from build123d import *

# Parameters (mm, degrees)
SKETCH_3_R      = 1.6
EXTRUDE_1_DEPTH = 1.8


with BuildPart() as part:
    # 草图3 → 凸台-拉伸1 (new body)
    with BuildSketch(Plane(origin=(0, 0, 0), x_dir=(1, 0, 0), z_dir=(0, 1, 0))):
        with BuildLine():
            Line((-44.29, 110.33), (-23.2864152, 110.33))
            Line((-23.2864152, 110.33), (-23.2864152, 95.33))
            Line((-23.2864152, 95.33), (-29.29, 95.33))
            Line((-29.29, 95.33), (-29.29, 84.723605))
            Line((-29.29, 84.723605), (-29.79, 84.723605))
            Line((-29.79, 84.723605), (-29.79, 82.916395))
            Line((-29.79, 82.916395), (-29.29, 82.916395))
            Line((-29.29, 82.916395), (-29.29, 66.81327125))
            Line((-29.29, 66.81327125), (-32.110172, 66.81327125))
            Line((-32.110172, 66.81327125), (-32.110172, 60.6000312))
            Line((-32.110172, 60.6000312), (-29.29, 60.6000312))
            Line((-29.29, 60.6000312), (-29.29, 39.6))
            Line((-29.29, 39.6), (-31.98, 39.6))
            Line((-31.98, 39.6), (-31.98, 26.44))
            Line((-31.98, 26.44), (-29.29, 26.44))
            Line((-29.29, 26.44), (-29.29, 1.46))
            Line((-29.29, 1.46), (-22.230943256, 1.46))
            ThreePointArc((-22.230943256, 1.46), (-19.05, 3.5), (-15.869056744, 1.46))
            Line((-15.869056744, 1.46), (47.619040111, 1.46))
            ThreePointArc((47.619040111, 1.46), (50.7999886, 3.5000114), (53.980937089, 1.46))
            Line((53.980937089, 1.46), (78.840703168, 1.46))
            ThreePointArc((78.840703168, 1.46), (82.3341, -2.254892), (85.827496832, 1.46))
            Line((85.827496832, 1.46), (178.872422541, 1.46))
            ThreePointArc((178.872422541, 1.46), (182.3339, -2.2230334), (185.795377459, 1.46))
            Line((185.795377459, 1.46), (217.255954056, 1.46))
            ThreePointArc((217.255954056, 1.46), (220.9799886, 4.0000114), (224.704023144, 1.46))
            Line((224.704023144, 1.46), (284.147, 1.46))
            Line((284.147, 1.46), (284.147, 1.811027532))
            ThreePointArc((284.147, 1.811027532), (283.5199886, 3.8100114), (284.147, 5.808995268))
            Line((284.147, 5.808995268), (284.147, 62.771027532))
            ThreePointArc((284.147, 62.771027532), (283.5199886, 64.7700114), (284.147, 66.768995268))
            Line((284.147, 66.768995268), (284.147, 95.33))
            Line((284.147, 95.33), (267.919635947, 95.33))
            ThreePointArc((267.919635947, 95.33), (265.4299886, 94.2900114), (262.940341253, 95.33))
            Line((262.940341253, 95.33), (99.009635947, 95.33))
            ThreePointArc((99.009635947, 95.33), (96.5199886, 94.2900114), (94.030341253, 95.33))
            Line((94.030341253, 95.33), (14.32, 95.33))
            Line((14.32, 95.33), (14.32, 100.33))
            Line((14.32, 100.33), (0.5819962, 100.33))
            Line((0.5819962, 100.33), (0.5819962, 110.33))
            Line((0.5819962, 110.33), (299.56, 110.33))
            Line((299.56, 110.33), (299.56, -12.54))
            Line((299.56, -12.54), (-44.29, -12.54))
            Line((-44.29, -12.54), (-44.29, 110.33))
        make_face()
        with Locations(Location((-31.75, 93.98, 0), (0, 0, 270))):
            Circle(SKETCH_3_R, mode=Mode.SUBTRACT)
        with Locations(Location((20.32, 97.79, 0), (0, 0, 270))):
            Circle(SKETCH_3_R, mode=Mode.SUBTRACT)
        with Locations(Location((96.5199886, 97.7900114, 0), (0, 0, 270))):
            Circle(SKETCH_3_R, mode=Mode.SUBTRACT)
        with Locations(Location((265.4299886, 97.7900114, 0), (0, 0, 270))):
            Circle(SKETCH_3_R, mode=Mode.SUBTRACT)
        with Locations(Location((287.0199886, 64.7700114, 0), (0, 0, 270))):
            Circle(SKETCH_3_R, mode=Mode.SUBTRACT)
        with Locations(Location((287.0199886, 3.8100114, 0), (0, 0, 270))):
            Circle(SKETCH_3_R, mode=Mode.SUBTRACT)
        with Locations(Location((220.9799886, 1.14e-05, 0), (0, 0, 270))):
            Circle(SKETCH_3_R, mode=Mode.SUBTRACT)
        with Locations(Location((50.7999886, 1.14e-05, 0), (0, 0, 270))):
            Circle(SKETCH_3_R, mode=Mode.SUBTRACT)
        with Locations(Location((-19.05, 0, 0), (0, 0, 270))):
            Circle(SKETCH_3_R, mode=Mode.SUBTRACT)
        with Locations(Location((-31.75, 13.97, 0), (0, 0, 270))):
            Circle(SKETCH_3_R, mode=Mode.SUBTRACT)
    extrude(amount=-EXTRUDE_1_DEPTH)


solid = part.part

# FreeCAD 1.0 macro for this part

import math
import FreeCAD as App
import Part
import Sketcher
Q = App.Units.Quantity

doc = App.newDocument("Part")
body = doc.addObject("PartDesign::Body", "Body")

# Sketch on XZ plane
sketch1 = doc.addObject("Sketcher::SketchObject", "Sketch")
body.addObject(sketch1)
sketch1.AttachmentSupport = (doc.XZ_Plane, [""])
sketch1.MapMode = "FlatFace"
sketch1.addGeometry([
    Part.LineSegment(App.Vector(-23.29, -110.33, 0), App.Vector(-44.29, -110.33, 0)),  # 0
    Part.LineSegment(App.Vector(-44.29, -110.33, 0), App.Vector(-44.29, 12.54, 0)),  # 1
    Part.LineSegment(App.Vector(-44.29, 12.54, 0), App.Vector(299.56, 12.54, 0)),  # 2
    Part.LineSegment(App.Vector(299.56, 12.54, 0), App.Vector(299.56, -110.33, 0)),  # 3
    Part.LineSegment(App.Vector(299.56, -110.33, 0), App.Vector(0.58, -110.33, 0)),  # 4
    Part.LineSegment(App.Vector(0.58, -110.33, 0), App.Vector(0.58, -100.33, 0)),  # 5
    Part.LineSegment(App.Vector(0.58, -100.33, 0), App.Vector(14.32, -100.33, 0)),  # 6
    Part.LineSegment(App.Vector(14.32, -100.33, 0), App.Vector(14.32, -95.33, 0)),  # 7
    Part.LineSegment(App.Vector(14.32, -95.33, 0), App.Vector(94.03, -95.33, 0)),  # 8
    Part.ArcOfCircle(Part.Circle(App.Vector(96.52, -97.79, 0), App.Vector(0, 0, 1), 3.5), math.radians(45), math.radians(135)),  # 9
    Part.LineSegment(App.Vector(99.01, -95.33, 0), App.Vector(262.94, -95.33, 0)),  # 10
    Part.ArcOfCircle(Part.Circle(App.Vector(265.43, -97.79, 0), App.Vector(0, 0, 1), 3.5), math.radians(45), math.radians(135)),  # 11
    Part.LineSegment(App.Vector(267.92, -95.33, 0), App.Vector(284.15, -95.33, 0)),  # 12
    Part.LineSegment(App.Vector(284.15, -95.33, 0), App.Vector(284.15, -66.77, 0)),  # 13
    Part.ArcOfCircle(Part.Circle(App.Vector(287.02, -64.77, 0), App.Vector(0, 0, 1), 3.5), math.radians(145), math.radians(215)),  # 14
    Part.LineSegment(App.Vector(284.15, -62.77, 0), App.Vector(284.15, -5.81, 0)),  # 15
    Part.ArcOfCircle(Part.Circle(App.Vector(287.02, -3.81, 0), App.Vector(0, 0, 1), 3.5), math.radians(145), math.radians(215)),  # 16
    Part.LineSegment(App.Vector(284.15, -1.81, 0), App.Vector(284.15, -1.46, 0)),  # 17
    Part.LineSegment(App.Vector(284.15, -1.46, 0), App.Vector(224.7, -1.46, 0)),  # 18
    Part.ArcOfCircle(Part.Circle(App.Vector(220.98, 0, 0), App.Vector(0, 0, 1), 4), math.radians(-159), math.radians(-21)),  # 19
    Part.LineSegment(App.Vector(217.26, -1.46, 0), App.Vector(185.8, -1.46, 0)),  # 20
    Part.ArcOfCircle(Part.Circle(App.Vector(182.33, -1.25, 0), App.Vector(0, 0, 1), 3.47), math.radians(-4), math.radians(184)),  # 21
    Part.LineSegment(App.Vector(178.87, -1.46, 0), App.Vector(85.83, -1.46, 0)),  # 22
    Part.ArcOfCircle(Part.Circle(App.Vector(82.33, -1.25, 0), App.Vector(0, 0, 1), 3.5), math.radians(-4), math.radians(184)),  # 23
    Part.LineSegment(App.Vector(78.84, -1.46, 0), App.Vector(53.98, -1.46, 0)),  # 24
    Part.ArcOfCircle(Part.Circle(App.Vector(50.8, 0, 0), App.Vector(0, 0, 1), 3.5), math.radians(-155), math.radians(-25)),  # 25
    Part.LineSegment(App.Vector(47.62, -1.46, 0), App.Vector(-15.87, -1.46, 0)),  # 26
    Part.ArcOfCircle(Part.Circle(App.Vector(-19.05, 0, 0), App.Vector(0, 0, 1), 3.5), math.radians(-155), math.radians(-25)),  # 27
    Part.LineSegment(App.Vector(-22.23, -1.46, 0), App.Vector(-29.29, -1.46, 0)),  # 28
    Part.LineSegment(App.Vector(-29.29, -1.46, 0), App.Vector(-29.29, -26.44, 0)),  # 29
    Part.LineSegment(App.Vector(-29.29, -26.44, 0), App.Vector(-31.98, -26.44, 0)),  # 30
    Part.LineSegment(App.Vector(-31.98, -26.44, 0), App.Vector(-31.98, -39.6, 0)),  # 31
    Part.LineSegment(App.Vector(-31.98, -39.6, 0), App.Vector(-29.29, -39.6, 0)),  # 32
    Part.LineSegment(App.Vector(-29.29, -39.6, 0), App.Vector(-29.29, -60.6, 0)),  # 33
    Part.LineSegment(App.Vector(-29.29, -60.6, 0), App.Vector(-32.11, -60.6, 0)),  # 34
    Part.LineSegment(App.Vector(-32.11, -60.6, 0), App.Vector(-32.11, -66.81, 0)),  # 35
    Part.LineSegment(App.Vector(-32.11, -66.81, 0), App.Vector(-29.29, -66.81, 0)),  # 36
    Part.LineSegment(App.Vector(-29.29, -66.81, 0), App.Vector(-29.29, -82.92, 0)),  # 37
    Part.LineSegment(App.Vector(-29.29, -82.92, 0), App.Vector(-29.79, -82.92, 0)),  # 38
    Part.LineSegment(App.Vector(-29.79, -82.92, 0), App.Vector(-29.79, -84.72, 0)),  # 39
    Part.LineSegment(App.Vector(-29.79, -84.72, 0), App.Vector(-29.29, -84.72, 0)),  # 40
    Part.LineSegment(App.Vector(-29.29, -84.72, 0), App.Vector(-29.29, -95.33, 0)),  # 41
    Part.LineSegment(App.Vector(-29.29, -95.33, 0), App.Vector(-23.29, -95.33, 0)),  # 42
    Part.LineSegment(App.Vector(-23.29, -95.33, 0), App.Vector(-23.29, -110.33, 0)),  # 43
    Part.Circle(App.Vector(287.02, -3.81, 0), App.Vector(0, 0, 1), 1.6),  # 44
    Part.Circle(App.Vector(220.98, 0, 0), App.Vector(0, 0, 1), 1.6),  # 45
    Part.Circle(App.Vector(50.8, 0, 0), App.Vector(0, 0, 1), 1.6),  # 46
    Part.Circle(App.Vector(-19.05, 0, 0), App.Vector(0, 0, 1), 1.6),  # 47
    Part.Circle(App.Vector(-31.75, -13.97, 0), App.Vector(0, 0, 1), 1.6),  # 48
    Part.Circle(App.Vector(287.02, -64.77, 0), App.Vector(0, 0, 1), 1.6),  # 49
    Part.Circle(App.Vector(265.43, -97.79, 0), App.Vector(0, 0, 1), 1.6),  # 50
    Part.Circle(App.Vector(96.52, -97.79, 0), App.Vector(0, 0, 1), 1.6),  # 51
    Part.Circle(App.Vector(20.32, -97.79, 0), App.Vector(0, 0, 1), 1.6),  # 52
    Part.Circle(App.Vector(-31.75, -93.98, 0), App.Vector(0, 0, 1), 1.6),  # 53
], False)
sketch1.addConstraint([
    Sketcher.Constraint("Coincident", 0, 2, 1, 1),
    Sketcher.Constraint("Coincident", 1, 2, 2, 1),
    Sketcher.Constraint("Coincident", 2, 2, 3, 1),
    Sketcher.Constraint("Coincident", 3, 2, 4, 1),
    Sketcher.Constraint("Coincident", 4, 2, 5, 1),
    Sketcher.Constraint("Coincident", 5, 2, 6, 1),
    Sketcher.Constraint("Coincident", 6, 2, 7, 1),
    Sketcher.Constraint("Coincident", 7, 2, 8, 1),
    Sketcher.Constraint("Coincident", 8, 2, 9, 2),
    Sketcher.Constraint("Coincident", 9, 1, 10, 1),
    Sketcher.Constraint("Coincident", 10, 2, 11, 2),
    Sketcher.Constraint("Coincident", 11, 1, 12, 1),
    Sketcher.Constraint("Coincident", 12, 2, 13, 1),
    Sketcher.Constraint("Coincident", 13, 2, 14, 2),
    Sketcher.Constraint("Coincident", 14, 1, 15, 1),
    Sketcher.Constraint("Coincident", 15, 2, 16, 2),
    Sketcher.Constraint("Coincident", 16, 1, 17, 1),
    Sketcher.Constraint("Coincident", 17, 2, 18, 1),
    Sketcher.Constraint("Coincident", 18, 2, 19, 2),
    Sketcher.Constraint("Coincident", 19, 1, 20, 1),
    Sketcher.Constraint("Coincident", 20, 2, 21, 1),
    Sketcher.Constraint("Coincident", 21, 2, 22, 1),
    Sketcher.Constraint("Coincident", 22, 2, 23, 1),
    Sketcher.Constraint("Coincident", 23, 2, 24, 1),
    Sketcher.Constraint("Coincident", 24, 2, 25, 2),
    Sketcher.Constraint("Coincident", 25, 1, 26, 1),
    Sketcher.Constraint("Coincident", 26, 2, 27, 2),
    Sketcher.Constraint("Coincident", 27, 1, 28, 1),
    Sketcher.Constraint("Coincident", 28, 2, 29, 1),
    Sketcher.Constraint("Coincident", 29, 2, 30, 1),
    Sketcher.Constraint("Coincident", 30, 2, 31, 1),
    Sketcher.Constraint("Coincident", 31, 2, 32, 1),
    Sketcher.Constraint("Coincident", 32, 2, 33, 1),
    Sketcher.Constraint("Coincident", 33, 2, 34, 1),
    Sketcher.Constraint("Coincident", 34, 2, 35, 1),
    Sketcher.Constraint("Coincident", 35, 2, 36, 1),
    Sketcher.Constraint("Coincident", 36, 2, 37, 1),
    Sketcher.Constraint("Coincident", 37, 2, 38, 1),
    Sketcher.Constraint("Coincident", 38, 2, 39, 1),
    Sketcher.Constraint("Coincident", 39, 2, 40, 1),
    Sketcher.Constraint("Coincident", 40, 2, 41, 1),
    Sketcher.Constraint("Coincident", 41, 2, 42, 1),
    Sketcher.Constraint("Coincident", 42, 2, 43, 1),
    Sketcher.Constraint("Coincident", 43, 2, 0, 1),
    Sketcher.Constraint("Horizontal", 0),
    Sketcher.Constraint("Vertical", 1),
    Sketcher.Constraint("Horizontal", 2),
    Sketcher.Constraint("Vertical", 3),
    Sketcher.Constraint("Horizontal", 4),
    Sketcher.Constraint("Vertical", 5),
    Sketcher.Constraint("Horizontal", 6),
    Sketcher.Constraint("Vertical", 7),
    Sketcher.Constraint("Horizontal", 8),
    Sketcher.Constraint("Horizontal", 10),
    Sketcher.Constraint("Horizontal", 12),
    Sketcher.Constraint("Vertical", 13),
    Sketcher.Constraint("Vertical", 15),
    Sketcher.Constraint("Vertical", 17),
    Sketcher.Constraint("Horizontal", 18),
    Sketcher.Constraint("Horizontal", 20),
    Sketcher.Constraint("Horizontal", 22),
    Sketcher.Constraint("Horizontal", 24),
    Sketcher.Constraint("Horizontal", 26),
    Sketcher.Constraint("Horizontal", 28),
    Sketcher.Constraint("Vertical", 29),
    Sketcher.Constraint("Horizontal", 30),
    Sketcher.Constraint("Vertical", 31),
    Sketcher.Constraint("Horizontal", 32),
    Sketcher.Constraint("Vertical", 33),
    Sketcher.Constraint("Horizontal", 34),
    Sketcher.Constraint("Vertical", 35),
    Sketcher.Constraint("Horizontal", 36),
    Sketcher.Constraint("Vertical", 37),
    Sketcher.Constraint("Horizontal", 38),
    Sketcher.Constraint("Vertical", 39),
    Sketcher.Constraint("Horizontal", 40),
    Sketcher.Constraint("Vertical", 41),
    Sketcher.Constraint("Horizontal", 42),
    Sketcher.Constraint("Vertical", 43),
    Sketcher.Constraint("Coincident", 44, 3, 16, 3),
    Sketcher.Constraint("Coincident", 45, 3, 19, 3),
    Sketcher.Constraint("Coincident", 46, 3, 25, 3),
    Sketcher.Constraint("Coincident", 47, 3, 27, 3),
    Sketcher.Constraint("Coincident", 49, 3, 14, 3),
    Sketcher.Constraint("Coincident", 50, 3, 11, 3),
    Sketcher.Constraint("Coincident", 51, 3, 9, 3),
    Sketcher.Constraint("Equal", 9, 11),
    Sketcher.Constraint("Equal", 11, 14),
    Sketcher.Constraint("Equal", 14, 16),
    Sketcher.Constraint("Equal", 16, 23),
    Sketcher.Constraint("Equal", 23, 25),
    Sketcher.Constraint("Equal", 25, 27),
    Sketcher.Constraint("Equal", 44, 45),
    Sketcher.Constraint("Equal", 45, 46),
    Sketcher.Constraint("Equal", 46, 47),
    Sketcher.Constraint("Equal", 47, 48),
    Sketcher.Constraint("Equal", 48, 49),
    Sketcher.Constraint("Equal", 49, 50),
    Sketcher.Constraint("Equal", 50, 51),
    Sketcher.Constraint("Equal", 51, 52),
    Sketcher.Constraint("Equal", 52, 53),
    Sketcher.Constraint("PointOnObject", 27, 3, -1),
    Sketcher.Constraint("Horizontal", 9, 3, 11, 3),
    Sketcher.Constraint("Horizontal", 21, 3, 23, 3),
    Sketcher.Constraint("Horizontal", 19, 3, 25, 3),
    Sketcher.Constraint("Horizontal", 0, 2, 3, 2),
    Sketcher.Constraint("Horizontal", 8, 2, 9, 1),
    Sketcher.Constraint("Horizontal", 10, 2, 11, 1),
    Sketcher.Constraint("Horizontal", 18, 2, 19, 1),
    Sketcher.Constraint("Horizontal", 20, 2, 21, 2),
    Sketcher.Constraint("Horizontal", 22, 2, 23, 2),
    Sketcher.Constraint("Horizontal", 24, 2, 25, 1),
    Sketcher.Constraint("Horizontal", 26, 2, 27, 1),
    Sketcher.Constraint("Horizontal", 12, 2, 41, 2),
    Sketcher.Constraint("Vertical", 14, 3, 16, 3),
    Sketcher.Constraint("Vertical", 48, 3, 53, 3),
    Sketcher.Constraint("Vertical", 13, 2, 14, 1),
    Sketcher.Constraint("Vertical", 15, 2, 16, 1),
    Sketcher.Constraint("Vertical", 29, 2, 32, 2),
    Sketcher.Constraint("Vertical", 33, 2, 36, 2),
    Sketcher.Constraint("Vertical", 37, 2, 40, 2),
    Sketcher.Constraint("Radius", 19, Q("4 mm")),
    Sketcher.Constraint("Diameter", 44, Q("3.2 mm")),
    Sketcher.Constraint("Radius", 9, Q("3.5 mm")),
    Sketcher.Constraint("DistanceY", 5, 1, 5, 2, Q("10 mm")),
    Sketcher.Constraint("DistanceY", 7, 1, 7, 2, Q("5 mm")),
    Sketcher.Constraint("DistanceX", 38, 2, 38, 1, Q("0.5 mm")),
    Sketcher.Constraint("DistanceX", 2, 1, 2, 2, Q("343.85 mm")),
    Sketcher.Constraint("DistanceX", 30, 2, 30, 1, Q("2.69 mm")),
    Sketcher.Constraint("DistanceY", 1, 1, 1, 2, Q("122.87 mm")),
    Sketcher.Constraint("DistanceY", 29, 2, 29, 1, Q("24.98 mm")),
    Sketcher.Constraint("DistanceY", 31, 2, 31, 1, Q("13.16 mm")),
    Sketcher.Constraint("DistanceY", 31, 2, -1, 1, Q("39.6 mm")),
    Sketcher.Constraint("DistanceX", 27, 3, -1, 1, Q("19.05 mm")),
    Sketcher.Constraint("DistanceX", 48, 3, -1, 1, Q("31.75 mm")),
    Sketcher.Constraint("DistanceY", 48, 3, -1, 1, Q("13.97 mm")),
    Sketcher.Constraint("DistanceX", -1, 1, 52, 3, Q("20.32 mm")),
    Sketcher.Constraint("DistanceY", 52, 3, -1, 1, Q("97.79 mm")),
    Sketcher.Constraint("DistanceY", 53, 3, -1, 1, Q("93.98 mm")),
    Sketcher.Constraint("DistanceX", 0, 2, -1, 1, Q("44.29 mm")),
    Sketcher.Constraint("DistanceY", 0, 2, -1, 1, Q("110.33 mm")),
    Sketcher.Constraint("DistanceX", -1, 1, 6, 2, Q("14.32 mm")),
    Sketcher.Constraint("DistanceX", 28, 2, -1, 1, Q("29.29 mm")),
    Sketcher.Constraint("Radius", 21, Q("3.468141 mm")),
    Sketcher.Constraint("DistanceX", -1, 1, 12, 2, Q("284.147 mm")),
    Sketcher.Constraint("DistanceX", 8, 1, 8, 2, Q("79.710341 mm")),
    Sketcher.Constraint("DistanceX", 34, 2, 34, 1, Q("2.820172 mm")),
    Sketcher.Constraint("DistanceY", 33, 2, 33, 1, Q("21.000031 mm")),
    Sketcher.Constraint("DistanceY", 35, 2, 35, 1, Q("6.21324 mm")),
    Sketcher.Constraint("DistanceY", 39, 2, 39, 1, Q("1.80721 mm")),
    Sketcher.Constraint("DistanceX", -1, 1, 21, 3, Q("182.3339 mm")),
    Sketcher.Constraint("DistanceX", -1, 1, 23, 3, Q("82.3341 mm")),
    Sketcher.Constraint("DistanceX", 0, 2, 0, 1, Q("21.003585 mm")),
    Sketcher.Constraint("DistanceX", 4, 2, 4, 1, Q("298.978004 mm")),
    Sketcher.Constraint("DistanceX", 10, 1, 10, 2, Q("163.930705 mm")),
    Sketcher.Constraint("DistanceX", 12, 1, 12, 2, Q("16.227364 mm")),
    Sketcher.Constraint("DistanceX", 18, 2, 18, 1, Q("59.442977 mm")),
    Sketcher.Constraint("DistanceX", 20, 2, 20, 1, Q("31.460577 mm")),
    Sketcher.Constraint("DistanceX", 22, 2, 22, 1, Q("93.044926 mm")),
    Sketcher.Constraint("DistanceX", 24, 2, 24, 1, Q("24.859766 mm")),
    Sketcher.Constraint("DistanceY", 13, 1, 13, 2, Q("28.561005 mm")),
    Sketcher.Constraint("DistanceY", 15, 1, 15, 2, Q("56.962032 mm")),
    Sketcher.Constraint("DistanceY", 17, 1, 17, 2, Q("0.351028 mm")),
    Sketcher.Constraint("DistanceY", 37, 2, 37, 1, Q("16.103124 mm")),
])
pad1 = doc.addObject("PartDesign::Pad", "Pad")
body.addObject(pad1)
pad1.Profile = sketch1
pad1.Length = 1.8

doc.recompute()
